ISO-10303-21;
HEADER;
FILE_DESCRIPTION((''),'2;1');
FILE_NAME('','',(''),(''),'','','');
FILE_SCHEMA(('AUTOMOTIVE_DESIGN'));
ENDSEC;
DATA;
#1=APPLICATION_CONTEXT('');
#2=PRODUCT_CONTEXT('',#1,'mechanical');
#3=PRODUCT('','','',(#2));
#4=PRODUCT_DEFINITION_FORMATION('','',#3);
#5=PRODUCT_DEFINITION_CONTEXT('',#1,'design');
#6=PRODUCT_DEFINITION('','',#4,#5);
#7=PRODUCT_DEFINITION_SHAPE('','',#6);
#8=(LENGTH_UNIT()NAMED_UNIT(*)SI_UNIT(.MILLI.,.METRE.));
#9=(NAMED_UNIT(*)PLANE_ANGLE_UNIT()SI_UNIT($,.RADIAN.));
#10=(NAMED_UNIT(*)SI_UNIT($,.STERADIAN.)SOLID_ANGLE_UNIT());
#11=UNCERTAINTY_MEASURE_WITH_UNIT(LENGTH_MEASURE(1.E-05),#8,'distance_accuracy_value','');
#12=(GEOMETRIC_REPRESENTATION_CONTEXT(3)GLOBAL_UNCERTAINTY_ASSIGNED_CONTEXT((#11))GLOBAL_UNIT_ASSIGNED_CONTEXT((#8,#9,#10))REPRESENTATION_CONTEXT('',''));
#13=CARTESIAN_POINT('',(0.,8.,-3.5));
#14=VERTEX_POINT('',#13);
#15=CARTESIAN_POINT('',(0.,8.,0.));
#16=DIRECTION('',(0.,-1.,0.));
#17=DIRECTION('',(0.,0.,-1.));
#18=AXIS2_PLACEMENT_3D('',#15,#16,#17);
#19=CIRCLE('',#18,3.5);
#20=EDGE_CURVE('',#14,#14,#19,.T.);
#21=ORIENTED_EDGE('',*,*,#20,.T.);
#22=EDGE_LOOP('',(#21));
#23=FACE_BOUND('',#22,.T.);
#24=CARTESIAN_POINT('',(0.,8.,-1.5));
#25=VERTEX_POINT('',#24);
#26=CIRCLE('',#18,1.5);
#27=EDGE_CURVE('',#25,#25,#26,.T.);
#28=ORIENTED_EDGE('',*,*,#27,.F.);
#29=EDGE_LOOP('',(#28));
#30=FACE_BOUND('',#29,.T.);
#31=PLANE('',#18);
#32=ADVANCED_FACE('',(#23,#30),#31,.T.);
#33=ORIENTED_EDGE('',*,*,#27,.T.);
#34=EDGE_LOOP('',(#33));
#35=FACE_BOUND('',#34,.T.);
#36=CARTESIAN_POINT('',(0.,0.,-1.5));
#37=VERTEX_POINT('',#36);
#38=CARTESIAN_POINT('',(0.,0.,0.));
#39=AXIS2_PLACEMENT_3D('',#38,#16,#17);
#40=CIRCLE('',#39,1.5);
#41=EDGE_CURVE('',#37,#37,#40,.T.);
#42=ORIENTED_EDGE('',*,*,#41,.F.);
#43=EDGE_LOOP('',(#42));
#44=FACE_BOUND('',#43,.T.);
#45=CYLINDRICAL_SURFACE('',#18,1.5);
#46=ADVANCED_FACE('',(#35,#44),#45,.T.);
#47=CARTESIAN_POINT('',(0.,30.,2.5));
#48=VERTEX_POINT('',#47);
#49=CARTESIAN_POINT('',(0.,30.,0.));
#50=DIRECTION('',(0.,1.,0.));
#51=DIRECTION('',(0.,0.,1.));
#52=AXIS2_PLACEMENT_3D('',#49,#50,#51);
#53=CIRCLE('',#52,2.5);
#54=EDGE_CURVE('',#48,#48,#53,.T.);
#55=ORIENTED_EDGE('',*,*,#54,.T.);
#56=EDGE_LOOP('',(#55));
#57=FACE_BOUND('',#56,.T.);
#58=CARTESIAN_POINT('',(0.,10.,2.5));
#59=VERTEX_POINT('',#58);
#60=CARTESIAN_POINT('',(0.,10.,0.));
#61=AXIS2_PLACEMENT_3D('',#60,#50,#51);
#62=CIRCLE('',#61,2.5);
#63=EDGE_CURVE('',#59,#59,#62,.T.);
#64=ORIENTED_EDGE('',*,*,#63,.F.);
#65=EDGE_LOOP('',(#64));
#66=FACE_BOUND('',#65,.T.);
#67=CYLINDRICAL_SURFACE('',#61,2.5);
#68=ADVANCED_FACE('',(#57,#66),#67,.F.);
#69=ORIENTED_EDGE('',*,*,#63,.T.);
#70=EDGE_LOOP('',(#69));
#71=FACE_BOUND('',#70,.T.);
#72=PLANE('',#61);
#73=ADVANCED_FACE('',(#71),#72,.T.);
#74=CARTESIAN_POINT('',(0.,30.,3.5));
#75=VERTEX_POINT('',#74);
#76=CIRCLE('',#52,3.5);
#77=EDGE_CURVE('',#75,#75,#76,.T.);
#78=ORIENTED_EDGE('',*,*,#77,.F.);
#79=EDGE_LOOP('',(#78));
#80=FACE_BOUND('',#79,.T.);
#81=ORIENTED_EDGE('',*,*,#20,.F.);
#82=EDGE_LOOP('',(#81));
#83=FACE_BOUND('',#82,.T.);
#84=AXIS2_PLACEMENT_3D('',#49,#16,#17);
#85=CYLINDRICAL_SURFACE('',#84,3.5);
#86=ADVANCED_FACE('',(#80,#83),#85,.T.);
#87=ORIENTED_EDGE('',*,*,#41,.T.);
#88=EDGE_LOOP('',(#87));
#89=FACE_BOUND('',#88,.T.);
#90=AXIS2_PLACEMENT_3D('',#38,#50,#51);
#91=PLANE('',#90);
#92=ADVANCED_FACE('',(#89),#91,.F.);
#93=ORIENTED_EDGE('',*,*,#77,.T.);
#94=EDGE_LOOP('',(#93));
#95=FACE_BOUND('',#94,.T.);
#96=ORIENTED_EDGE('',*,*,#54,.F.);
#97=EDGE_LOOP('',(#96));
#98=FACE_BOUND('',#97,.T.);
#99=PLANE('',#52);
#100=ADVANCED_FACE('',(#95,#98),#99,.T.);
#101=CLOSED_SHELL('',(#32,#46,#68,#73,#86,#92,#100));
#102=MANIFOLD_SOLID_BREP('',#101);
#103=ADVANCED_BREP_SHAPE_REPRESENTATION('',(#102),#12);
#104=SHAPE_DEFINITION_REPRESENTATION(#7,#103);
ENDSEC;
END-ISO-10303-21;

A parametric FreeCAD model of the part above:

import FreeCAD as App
import Part
import Sketcher
Q = App.Units.Quantity

doc = App.newDocument("Part")
params = doc.addObject("Spreadsheet::Sheet", "Params")
for row, (alias, value) in enumerate([
    ("sketch1_diameter", "7 mm"),
    ("pad1_length", "30 mm"),
    ("sketch2_diameter", "5 mm"),
    ("pocket1_length", "20 mm"),
    ("sketch3_diameter", "7 mm"),
    ("sketch3_diameter2", "3 mm"),
    ("pocket2_length", "8 mm"),
], start=1):
    params.set(f"A{row}", alias)
    params.set(f"B{row}", "=" + value)
    params.setAlias(f"B{row}", alias)

body = doc.addObject("PartDesign::Body", "Body")

sketch1 = body.newObject("Sketcher::SketchObject", "Sketch")
sketch1.AttachmentSupport = (doc.getObject("XZ_Plane"), [""])
sketch1.MapMode = "FlatFace"
sketch1.addGeometry(Part.Circle(App.Vector(0, 0, 0), App.Vector(0, 0, 1), 3.5), False)
sketch1.addConstraint(Sketcher.Constraint("Coincident", 0, 3, -1, 1))
sketch1.addConstraint(Sketcher.Constraint("Diameter", 0, Q("7 mm")))
sketch1.setExpression("Constraints[1]", "Params.sketch1_diameter")
pad1 = body.newObject("PartDesign::Pad", "Pad")
pad1.Profile = sketch1
pad1.setExpression("Length", "Params.pad1_length")
pad1.Reversed = True

sketch2 = body.newObject("Sketcher::SketchObject", "Sketch001")
sketch2.AttachmentSupport = (doc.getObject("XZ_Plane"), [""])
sketch2.MapMode = "FlatFace"
sketch2.AttachmentOffset = App.Placement(App.Vector(0, 0, -30), App.Rotation())
sketch2.addGeometry(Part.Circle(App.Vector(0, 0, 0), App.Vector(0, 0, 1), 2.5), False)
sketch2.addConstraint(Sketcher.Constraint("Coincident", 0, 3, -1, 1))
sketch2.addConstraint(Sketcher.Constraint("Diameter", 0, Q("5 mm")))
sketch2.setExpression("Constraints[1]", "Params.sketch2_diameter")
pocket1 = body.newObject("PartDesign::Pocket", "Pocket")
pocket1.Profile = sketch2
pocket1.setExpression("Length", "Params.pocket1_length")
pocket1.Reversed = True

sketch3 = body.newObject("Sketcher::SketchObject", "Sketch002")
sketch3.AttachmentSupport = (doc.getObject("XZ_Plane"), [""])
sketch3.MapMode = "FlatFace"
sketch3.addGeometry(Part.Circle(App.Vector(0, 0, 0), App.Vector(0, 0, 1), 3.5), False)
sketch3.addGeometry(Part.Circle(App.Vector(0, 0, 0), App.Vector(0, 0, 1), 1.5), False)
sketch3.addConstraint(Sketcher.Constraint("Coincident", 0, 3, -1, 1))
sketch3.addConstraint(Sketcher.Constraint("Coincident", 1, 3, -1, 1))
sketch3.addConstraint(Sketcher.Constraint("Diameter", 0, Q("7 mm")))
sketch3.addConstraint(Sketcher.Constraint("Diameter", 1, Q("3 mm")))
sketch3.setExpression("Constraints[2]", "Params.sketch3_diameter")
sketch3.setExpression("Constraints[3]", "Params.sketch3_diameter2")
pocket2 = body.newObject("PartDesign::Pocket", "Pocket001")
pocket2.Profile = sketch3
pocket2.setExpression("Length", "Params.pocket2_length")

doc.recompute()
